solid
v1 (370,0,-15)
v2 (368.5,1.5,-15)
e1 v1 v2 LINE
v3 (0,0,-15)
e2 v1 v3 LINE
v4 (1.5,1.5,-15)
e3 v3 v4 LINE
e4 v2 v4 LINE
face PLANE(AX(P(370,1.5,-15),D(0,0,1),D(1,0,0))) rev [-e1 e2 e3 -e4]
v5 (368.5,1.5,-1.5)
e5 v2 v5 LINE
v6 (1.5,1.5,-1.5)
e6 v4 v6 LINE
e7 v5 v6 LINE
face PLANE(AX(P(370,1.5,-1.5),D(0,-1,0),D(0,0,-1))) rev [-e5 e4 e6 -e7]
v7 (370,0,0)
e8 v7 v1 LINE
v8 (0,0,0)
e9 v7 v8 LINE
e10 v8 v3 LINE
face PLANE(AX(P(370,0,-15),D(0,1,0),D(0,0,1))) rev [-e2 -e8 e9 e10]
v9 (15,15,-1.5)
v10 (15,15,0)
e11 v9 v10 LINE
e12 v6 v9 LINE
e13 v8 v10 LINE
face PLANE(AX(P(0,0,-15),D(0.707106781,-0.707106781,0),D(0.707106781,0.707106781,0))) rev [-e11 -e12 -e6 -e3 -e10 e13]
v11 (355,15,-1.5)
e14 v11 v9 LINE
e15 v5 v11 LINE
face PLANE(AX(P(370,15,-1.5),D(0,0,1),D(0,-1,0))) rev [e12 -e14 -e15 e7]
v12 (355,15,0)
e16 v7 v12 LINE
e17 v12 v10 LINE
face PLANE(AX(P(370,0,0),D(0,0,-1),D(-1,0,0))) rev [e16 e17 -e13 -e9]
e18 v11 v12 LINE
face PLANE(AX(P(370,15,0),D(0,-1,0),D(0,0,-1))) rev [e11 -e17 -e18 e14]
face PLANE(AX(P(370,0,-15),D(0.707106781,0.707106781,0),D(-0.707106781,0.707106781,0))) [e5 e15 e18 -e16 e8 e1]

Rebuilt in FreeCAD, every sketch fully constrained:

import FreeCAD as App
import Part
import Sketcher


def add_polygon(sketch, points):
    """Adds a closed chain of lines whose ends are joined by coincident constraints."""
    first, n = sketch.GeometryCount, len(points)
    for a, b in zip(points, points[1:] + points[:1]):
        sketch.addGeometry(Part.LineSegment(App.Vector(*a, 0), App.Vector(*b, 0)), False)
    for i in range(n):
        sketch.addConstraint(Sketcher.Constraint("Coincident", first + i, 2, first + (i + 1) % n, 1))

doc = App.newDocument("Part")
body = doc.addObject("PartDesign::Body", "Body")

sketch1 = doc.addObject("Sketcher::SketchObject", "Sketch")
body.addObject(sketch1)
sketch1.AttachmentSupport = (doc.YZ_Plane, [""])
sketch1.MapMode = "FlatFace"
add_polygon(sketch1, [(15, 0), (0, 0), (0, -15), (1.5, -15), (1.5, -1.5), (15, -1.5)])
sketch1.addConstraint([
    Sketcher.Constraint("Horizontal", 0),
    Sketcher.Constraint("Vertical", 1),
    Sketcher.Constraint("Horizontal", 2),
    Sketcher.Constraint("Vertical", 3),
    Sketcher.Constraint("Horizontal", 4),
    Sketcher.Constraint("Vertical", 5),
    Sketcher.Constraint("Coincident", 0, 2, -1, 1),
    Sketcher.Constraint("Equal", 0, 1),
    Sketcher.Constraint("Equal", 4, 3),
    Sketcher.Constraint("DistanceX", 0, 2, 0, 1, 15.0),
    Sketcher.Constraint("DistanceX", 2, 1, 2, 2, 1.5),
])
pad1 = doc.addObject("PartDesign::Pad", "Pad")
body.addObject(pad1)
pad1.Profile = sketch1
pad1.Length = 370

sketch2 = doc.addObject("Sketcher::SketchObject", "Sketch001")
body.addObject(sketch2)
sketch2.AttachmentSupport = (doc.XY_Plane, [""])
sketch2.MapMode = "FlatFace"
add_polygon(sketch2, [(0, 0), (23, 23), (0, 23)])
sketch2.addConstraint([
    Sketcher.Constraint("Horizontal", 1),
    Sketcher.Constraint("Vertical", 2),
    Sketcher.Constraint("Coincident", 2, 2, -1, 1),
    Sketcher.Constraint("Equal", 1, 2),
    Sketcher.Constraint("Distance", 0, 32.183831),
])
pocket1 = doc.addObject("PartDesign::Pocket", "Pocket")
body.addObject(pocket1)
pocket1.Profile = sketch2
pocket1.Type = "ThroughAll"
doc.recompute()

datumplane = doc.addObject("PartDesign::Plane", "DatumPlane")
body.addObject(datumplane)
datumplane.AttachmentSupport = (doc.YZ_Plane, [""])
datumplane.MapMode = "FlatFace"
datumplane.AttachmentOffset = App.Placement(App.Vector(0, 0, 185), App.Rotation())
mirrored = doc.addObject("PartDesign::Mirrored", "Mirrored")
body.addObject(mirrored)
mirrored.Originals = [pocket1]
mirrored.MirrorPlane = (datumplane, [""])
body.Tip = mirrored

doc.recompute()
